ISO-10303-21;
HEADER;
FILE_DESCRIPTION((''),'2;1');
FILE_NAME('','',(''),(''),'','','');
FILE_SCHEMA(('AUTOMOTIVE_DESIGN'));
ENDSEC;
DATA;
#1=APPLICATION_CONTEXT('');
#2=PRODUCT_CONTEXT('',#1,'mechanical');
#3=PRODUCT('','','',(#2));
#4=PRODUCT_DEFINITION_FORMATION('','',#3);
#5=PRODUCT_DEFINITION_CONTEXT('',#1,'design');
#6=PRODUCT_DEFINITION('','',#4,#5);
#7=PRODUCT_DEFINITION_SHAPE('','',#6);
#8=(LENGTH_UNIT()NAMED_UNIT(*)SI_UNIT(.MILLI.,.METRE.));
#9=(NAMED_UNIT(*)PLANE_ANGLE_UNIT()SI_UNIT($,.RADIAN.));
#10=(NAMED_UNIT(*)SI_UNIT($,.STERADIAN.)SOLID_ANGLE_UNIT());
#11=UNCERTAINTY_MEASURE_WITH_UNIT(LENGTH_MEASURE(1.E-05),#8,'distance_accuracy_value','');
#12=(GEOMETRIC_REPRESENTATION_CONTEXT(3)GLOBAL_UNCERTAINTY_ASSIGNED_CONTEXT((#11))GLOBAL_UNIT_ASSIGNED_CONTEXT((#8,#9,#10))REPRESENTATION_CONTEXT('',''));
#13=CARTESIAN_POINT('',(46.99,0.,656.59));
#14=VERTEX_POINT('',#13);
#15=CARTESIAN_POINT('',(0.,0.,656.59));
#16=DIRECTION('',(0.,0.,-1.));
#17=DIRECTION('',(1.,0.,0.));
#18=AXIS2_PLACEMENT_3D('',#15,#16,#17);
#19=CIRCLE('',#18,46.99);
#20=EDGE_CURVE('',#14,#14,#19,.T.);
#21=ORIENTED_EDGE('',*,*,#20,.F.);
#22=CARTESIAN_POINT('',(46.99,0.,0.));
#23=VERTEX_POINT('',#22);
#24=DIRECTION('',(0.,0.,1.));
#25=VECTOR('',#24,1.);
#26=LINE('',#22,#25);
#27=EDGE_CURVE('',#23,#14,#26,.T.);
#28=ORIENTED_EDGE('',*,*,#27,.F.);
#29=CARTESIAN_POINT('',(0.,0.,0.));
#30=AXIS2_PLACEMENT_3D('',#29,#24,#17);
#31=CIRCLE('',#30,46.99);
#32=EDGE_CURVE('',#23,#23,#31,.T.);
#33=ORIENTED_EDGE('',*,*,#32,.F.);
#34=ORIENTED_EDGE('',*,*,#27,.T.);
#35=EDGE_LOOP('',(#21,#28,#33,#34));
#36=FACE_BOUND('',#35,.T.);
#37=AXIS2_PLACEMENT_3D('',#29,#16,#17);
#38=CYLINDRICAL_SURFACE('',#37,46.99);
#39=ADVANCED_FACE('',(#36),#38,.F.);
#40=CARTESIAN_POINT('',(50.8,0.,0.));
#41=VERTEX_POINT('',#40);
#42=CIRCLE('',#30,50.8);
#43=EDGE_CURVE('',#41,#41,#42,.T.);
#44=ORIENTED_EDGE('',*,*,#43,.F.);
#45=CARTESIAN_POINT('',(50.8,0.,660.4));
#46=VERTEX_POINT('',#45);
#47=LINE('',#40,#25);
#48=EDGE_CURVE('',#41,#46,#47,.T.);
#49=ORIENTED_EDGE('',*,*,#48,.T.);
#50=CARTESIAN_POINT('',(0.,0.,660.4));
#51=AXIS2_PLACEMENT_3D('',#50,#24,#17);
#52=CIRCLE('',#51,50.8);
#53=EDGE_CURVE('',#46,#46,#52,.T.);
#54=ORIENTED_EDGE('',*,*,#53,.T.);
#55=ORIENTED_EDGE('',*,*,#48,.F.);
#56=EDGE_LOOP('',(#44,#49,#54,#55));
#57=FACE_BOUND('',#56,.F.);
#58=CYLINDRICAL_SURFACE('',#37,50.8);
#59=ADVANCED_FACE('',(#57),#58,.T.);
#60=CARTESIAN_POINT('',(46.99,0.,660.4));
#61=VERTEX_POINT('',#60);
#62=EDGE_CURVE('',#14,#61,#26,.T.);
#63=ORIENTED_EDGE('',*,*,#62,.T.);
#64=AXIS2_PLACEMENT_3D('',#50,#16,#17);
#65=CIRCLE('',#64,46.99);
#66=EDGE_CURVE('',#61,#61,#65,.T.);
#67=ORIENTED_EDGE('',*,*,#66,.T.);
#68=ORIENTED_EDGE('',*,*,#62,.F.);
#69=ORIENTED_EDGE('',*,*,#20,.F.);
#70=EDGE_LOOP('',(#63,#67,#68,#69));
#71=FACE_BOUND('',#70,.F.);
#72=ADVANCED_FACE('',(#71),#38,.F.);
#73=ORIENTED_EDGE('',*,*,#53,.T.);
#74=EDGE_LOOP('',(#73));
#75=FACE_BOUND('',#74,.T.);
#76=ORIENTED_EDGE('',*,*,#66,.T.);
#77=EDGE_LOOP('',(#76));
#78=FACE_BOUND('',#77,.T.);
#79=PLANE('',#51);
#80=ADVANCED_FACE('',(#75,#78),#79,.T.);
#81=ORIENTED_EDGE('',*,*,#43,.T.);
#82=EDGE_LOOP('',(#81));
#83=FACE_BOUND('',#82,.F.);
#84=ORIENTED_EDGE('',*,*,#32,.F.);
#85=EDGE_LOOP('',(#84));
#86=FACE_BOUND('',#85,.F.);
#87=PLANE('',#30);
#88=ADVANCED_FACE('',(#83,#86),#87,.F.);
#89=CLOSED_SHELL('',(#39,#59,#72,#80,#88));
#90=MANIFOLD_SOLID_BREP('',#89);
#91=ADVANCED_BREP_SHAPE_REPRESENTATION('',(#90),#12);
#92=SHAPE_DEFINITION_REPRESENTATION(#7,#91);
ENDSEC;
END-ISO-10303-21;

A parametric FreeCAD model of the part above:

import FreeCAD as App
import Part
import Sketcher
from FreeCAD import Vector
Q = App.Units.Quantity


def faces_at(feature, points):
    """Names of the faces that lie closest to the given points."""
    faces = feature.Shape.Faces
    near = lambda p: min(range(len(faces)), key=lambda i: faces[i].distToShape(Part.Vertex(*p))[0])
    return sorted({f"Face{near(p) + 1}" for p in points})

doc = App.newDocument("Part")
body = doc.addObject("PartDesign::Body", "Body")

sketch1 = body.newObject("Sketcher::SketchObject", "Sketch")
sketch1.AttachmentSupport = (doc.getObject("XY_Plane"), [""])
sketch1.MapMode = "FlatFace"
sketch1.addGeometry(Part.Circle(Vector(0, 0, 0), Vector(0, 0, 1), 51), False)
sketch1.addConstraint(Sketcher.Constraint("Coincident", 0, 3, -1, 1))
sketch1.addConstraint(Sketcher.Constraint("Diameter", 0, Q("4 in")))
pad1 = body.newObject("PartDesign::Pad", "Pad")
pad1.Profile = sketch1
pad1.Length = Q("26 in")
doc.recompute()

thickness = body.newObject("PartDesign::Thickness", "Thickness")
thickness.Base = (pad1, faces_at(pad1, [(0, 0, 0)]))
thickness.Value = Q("0.15 in")
thickness.Reversed = True
thickness.Join = "Arc"

sketch2 = body.newObject("Sketcher::SketchObject", "Sketch001")
sketch2.AttachmentSupport = (doc.getObject("XY_Plane"), [""])
sketch2.MapMode = "FlatFace"
sketch2.addGeometry(Part.Circle(Vector(0, 0, 0), Vector(0, 0, 1), 47), False)
sketch2.addConstraint(Sketcher.Constraint("Coincident", 0, 3, -1, 1))
sketch2.addConstraint(Sketcher.Constraint("Diameter", 0, Q("3.7 in")))
pocket1 = body.newObject("PartDesign::Pocket", "Pocket")
pocket1.Profile = sketch2
pocket1.Type = "ThroughAll"
pocket1.Reversed = True

doc.recompute()
